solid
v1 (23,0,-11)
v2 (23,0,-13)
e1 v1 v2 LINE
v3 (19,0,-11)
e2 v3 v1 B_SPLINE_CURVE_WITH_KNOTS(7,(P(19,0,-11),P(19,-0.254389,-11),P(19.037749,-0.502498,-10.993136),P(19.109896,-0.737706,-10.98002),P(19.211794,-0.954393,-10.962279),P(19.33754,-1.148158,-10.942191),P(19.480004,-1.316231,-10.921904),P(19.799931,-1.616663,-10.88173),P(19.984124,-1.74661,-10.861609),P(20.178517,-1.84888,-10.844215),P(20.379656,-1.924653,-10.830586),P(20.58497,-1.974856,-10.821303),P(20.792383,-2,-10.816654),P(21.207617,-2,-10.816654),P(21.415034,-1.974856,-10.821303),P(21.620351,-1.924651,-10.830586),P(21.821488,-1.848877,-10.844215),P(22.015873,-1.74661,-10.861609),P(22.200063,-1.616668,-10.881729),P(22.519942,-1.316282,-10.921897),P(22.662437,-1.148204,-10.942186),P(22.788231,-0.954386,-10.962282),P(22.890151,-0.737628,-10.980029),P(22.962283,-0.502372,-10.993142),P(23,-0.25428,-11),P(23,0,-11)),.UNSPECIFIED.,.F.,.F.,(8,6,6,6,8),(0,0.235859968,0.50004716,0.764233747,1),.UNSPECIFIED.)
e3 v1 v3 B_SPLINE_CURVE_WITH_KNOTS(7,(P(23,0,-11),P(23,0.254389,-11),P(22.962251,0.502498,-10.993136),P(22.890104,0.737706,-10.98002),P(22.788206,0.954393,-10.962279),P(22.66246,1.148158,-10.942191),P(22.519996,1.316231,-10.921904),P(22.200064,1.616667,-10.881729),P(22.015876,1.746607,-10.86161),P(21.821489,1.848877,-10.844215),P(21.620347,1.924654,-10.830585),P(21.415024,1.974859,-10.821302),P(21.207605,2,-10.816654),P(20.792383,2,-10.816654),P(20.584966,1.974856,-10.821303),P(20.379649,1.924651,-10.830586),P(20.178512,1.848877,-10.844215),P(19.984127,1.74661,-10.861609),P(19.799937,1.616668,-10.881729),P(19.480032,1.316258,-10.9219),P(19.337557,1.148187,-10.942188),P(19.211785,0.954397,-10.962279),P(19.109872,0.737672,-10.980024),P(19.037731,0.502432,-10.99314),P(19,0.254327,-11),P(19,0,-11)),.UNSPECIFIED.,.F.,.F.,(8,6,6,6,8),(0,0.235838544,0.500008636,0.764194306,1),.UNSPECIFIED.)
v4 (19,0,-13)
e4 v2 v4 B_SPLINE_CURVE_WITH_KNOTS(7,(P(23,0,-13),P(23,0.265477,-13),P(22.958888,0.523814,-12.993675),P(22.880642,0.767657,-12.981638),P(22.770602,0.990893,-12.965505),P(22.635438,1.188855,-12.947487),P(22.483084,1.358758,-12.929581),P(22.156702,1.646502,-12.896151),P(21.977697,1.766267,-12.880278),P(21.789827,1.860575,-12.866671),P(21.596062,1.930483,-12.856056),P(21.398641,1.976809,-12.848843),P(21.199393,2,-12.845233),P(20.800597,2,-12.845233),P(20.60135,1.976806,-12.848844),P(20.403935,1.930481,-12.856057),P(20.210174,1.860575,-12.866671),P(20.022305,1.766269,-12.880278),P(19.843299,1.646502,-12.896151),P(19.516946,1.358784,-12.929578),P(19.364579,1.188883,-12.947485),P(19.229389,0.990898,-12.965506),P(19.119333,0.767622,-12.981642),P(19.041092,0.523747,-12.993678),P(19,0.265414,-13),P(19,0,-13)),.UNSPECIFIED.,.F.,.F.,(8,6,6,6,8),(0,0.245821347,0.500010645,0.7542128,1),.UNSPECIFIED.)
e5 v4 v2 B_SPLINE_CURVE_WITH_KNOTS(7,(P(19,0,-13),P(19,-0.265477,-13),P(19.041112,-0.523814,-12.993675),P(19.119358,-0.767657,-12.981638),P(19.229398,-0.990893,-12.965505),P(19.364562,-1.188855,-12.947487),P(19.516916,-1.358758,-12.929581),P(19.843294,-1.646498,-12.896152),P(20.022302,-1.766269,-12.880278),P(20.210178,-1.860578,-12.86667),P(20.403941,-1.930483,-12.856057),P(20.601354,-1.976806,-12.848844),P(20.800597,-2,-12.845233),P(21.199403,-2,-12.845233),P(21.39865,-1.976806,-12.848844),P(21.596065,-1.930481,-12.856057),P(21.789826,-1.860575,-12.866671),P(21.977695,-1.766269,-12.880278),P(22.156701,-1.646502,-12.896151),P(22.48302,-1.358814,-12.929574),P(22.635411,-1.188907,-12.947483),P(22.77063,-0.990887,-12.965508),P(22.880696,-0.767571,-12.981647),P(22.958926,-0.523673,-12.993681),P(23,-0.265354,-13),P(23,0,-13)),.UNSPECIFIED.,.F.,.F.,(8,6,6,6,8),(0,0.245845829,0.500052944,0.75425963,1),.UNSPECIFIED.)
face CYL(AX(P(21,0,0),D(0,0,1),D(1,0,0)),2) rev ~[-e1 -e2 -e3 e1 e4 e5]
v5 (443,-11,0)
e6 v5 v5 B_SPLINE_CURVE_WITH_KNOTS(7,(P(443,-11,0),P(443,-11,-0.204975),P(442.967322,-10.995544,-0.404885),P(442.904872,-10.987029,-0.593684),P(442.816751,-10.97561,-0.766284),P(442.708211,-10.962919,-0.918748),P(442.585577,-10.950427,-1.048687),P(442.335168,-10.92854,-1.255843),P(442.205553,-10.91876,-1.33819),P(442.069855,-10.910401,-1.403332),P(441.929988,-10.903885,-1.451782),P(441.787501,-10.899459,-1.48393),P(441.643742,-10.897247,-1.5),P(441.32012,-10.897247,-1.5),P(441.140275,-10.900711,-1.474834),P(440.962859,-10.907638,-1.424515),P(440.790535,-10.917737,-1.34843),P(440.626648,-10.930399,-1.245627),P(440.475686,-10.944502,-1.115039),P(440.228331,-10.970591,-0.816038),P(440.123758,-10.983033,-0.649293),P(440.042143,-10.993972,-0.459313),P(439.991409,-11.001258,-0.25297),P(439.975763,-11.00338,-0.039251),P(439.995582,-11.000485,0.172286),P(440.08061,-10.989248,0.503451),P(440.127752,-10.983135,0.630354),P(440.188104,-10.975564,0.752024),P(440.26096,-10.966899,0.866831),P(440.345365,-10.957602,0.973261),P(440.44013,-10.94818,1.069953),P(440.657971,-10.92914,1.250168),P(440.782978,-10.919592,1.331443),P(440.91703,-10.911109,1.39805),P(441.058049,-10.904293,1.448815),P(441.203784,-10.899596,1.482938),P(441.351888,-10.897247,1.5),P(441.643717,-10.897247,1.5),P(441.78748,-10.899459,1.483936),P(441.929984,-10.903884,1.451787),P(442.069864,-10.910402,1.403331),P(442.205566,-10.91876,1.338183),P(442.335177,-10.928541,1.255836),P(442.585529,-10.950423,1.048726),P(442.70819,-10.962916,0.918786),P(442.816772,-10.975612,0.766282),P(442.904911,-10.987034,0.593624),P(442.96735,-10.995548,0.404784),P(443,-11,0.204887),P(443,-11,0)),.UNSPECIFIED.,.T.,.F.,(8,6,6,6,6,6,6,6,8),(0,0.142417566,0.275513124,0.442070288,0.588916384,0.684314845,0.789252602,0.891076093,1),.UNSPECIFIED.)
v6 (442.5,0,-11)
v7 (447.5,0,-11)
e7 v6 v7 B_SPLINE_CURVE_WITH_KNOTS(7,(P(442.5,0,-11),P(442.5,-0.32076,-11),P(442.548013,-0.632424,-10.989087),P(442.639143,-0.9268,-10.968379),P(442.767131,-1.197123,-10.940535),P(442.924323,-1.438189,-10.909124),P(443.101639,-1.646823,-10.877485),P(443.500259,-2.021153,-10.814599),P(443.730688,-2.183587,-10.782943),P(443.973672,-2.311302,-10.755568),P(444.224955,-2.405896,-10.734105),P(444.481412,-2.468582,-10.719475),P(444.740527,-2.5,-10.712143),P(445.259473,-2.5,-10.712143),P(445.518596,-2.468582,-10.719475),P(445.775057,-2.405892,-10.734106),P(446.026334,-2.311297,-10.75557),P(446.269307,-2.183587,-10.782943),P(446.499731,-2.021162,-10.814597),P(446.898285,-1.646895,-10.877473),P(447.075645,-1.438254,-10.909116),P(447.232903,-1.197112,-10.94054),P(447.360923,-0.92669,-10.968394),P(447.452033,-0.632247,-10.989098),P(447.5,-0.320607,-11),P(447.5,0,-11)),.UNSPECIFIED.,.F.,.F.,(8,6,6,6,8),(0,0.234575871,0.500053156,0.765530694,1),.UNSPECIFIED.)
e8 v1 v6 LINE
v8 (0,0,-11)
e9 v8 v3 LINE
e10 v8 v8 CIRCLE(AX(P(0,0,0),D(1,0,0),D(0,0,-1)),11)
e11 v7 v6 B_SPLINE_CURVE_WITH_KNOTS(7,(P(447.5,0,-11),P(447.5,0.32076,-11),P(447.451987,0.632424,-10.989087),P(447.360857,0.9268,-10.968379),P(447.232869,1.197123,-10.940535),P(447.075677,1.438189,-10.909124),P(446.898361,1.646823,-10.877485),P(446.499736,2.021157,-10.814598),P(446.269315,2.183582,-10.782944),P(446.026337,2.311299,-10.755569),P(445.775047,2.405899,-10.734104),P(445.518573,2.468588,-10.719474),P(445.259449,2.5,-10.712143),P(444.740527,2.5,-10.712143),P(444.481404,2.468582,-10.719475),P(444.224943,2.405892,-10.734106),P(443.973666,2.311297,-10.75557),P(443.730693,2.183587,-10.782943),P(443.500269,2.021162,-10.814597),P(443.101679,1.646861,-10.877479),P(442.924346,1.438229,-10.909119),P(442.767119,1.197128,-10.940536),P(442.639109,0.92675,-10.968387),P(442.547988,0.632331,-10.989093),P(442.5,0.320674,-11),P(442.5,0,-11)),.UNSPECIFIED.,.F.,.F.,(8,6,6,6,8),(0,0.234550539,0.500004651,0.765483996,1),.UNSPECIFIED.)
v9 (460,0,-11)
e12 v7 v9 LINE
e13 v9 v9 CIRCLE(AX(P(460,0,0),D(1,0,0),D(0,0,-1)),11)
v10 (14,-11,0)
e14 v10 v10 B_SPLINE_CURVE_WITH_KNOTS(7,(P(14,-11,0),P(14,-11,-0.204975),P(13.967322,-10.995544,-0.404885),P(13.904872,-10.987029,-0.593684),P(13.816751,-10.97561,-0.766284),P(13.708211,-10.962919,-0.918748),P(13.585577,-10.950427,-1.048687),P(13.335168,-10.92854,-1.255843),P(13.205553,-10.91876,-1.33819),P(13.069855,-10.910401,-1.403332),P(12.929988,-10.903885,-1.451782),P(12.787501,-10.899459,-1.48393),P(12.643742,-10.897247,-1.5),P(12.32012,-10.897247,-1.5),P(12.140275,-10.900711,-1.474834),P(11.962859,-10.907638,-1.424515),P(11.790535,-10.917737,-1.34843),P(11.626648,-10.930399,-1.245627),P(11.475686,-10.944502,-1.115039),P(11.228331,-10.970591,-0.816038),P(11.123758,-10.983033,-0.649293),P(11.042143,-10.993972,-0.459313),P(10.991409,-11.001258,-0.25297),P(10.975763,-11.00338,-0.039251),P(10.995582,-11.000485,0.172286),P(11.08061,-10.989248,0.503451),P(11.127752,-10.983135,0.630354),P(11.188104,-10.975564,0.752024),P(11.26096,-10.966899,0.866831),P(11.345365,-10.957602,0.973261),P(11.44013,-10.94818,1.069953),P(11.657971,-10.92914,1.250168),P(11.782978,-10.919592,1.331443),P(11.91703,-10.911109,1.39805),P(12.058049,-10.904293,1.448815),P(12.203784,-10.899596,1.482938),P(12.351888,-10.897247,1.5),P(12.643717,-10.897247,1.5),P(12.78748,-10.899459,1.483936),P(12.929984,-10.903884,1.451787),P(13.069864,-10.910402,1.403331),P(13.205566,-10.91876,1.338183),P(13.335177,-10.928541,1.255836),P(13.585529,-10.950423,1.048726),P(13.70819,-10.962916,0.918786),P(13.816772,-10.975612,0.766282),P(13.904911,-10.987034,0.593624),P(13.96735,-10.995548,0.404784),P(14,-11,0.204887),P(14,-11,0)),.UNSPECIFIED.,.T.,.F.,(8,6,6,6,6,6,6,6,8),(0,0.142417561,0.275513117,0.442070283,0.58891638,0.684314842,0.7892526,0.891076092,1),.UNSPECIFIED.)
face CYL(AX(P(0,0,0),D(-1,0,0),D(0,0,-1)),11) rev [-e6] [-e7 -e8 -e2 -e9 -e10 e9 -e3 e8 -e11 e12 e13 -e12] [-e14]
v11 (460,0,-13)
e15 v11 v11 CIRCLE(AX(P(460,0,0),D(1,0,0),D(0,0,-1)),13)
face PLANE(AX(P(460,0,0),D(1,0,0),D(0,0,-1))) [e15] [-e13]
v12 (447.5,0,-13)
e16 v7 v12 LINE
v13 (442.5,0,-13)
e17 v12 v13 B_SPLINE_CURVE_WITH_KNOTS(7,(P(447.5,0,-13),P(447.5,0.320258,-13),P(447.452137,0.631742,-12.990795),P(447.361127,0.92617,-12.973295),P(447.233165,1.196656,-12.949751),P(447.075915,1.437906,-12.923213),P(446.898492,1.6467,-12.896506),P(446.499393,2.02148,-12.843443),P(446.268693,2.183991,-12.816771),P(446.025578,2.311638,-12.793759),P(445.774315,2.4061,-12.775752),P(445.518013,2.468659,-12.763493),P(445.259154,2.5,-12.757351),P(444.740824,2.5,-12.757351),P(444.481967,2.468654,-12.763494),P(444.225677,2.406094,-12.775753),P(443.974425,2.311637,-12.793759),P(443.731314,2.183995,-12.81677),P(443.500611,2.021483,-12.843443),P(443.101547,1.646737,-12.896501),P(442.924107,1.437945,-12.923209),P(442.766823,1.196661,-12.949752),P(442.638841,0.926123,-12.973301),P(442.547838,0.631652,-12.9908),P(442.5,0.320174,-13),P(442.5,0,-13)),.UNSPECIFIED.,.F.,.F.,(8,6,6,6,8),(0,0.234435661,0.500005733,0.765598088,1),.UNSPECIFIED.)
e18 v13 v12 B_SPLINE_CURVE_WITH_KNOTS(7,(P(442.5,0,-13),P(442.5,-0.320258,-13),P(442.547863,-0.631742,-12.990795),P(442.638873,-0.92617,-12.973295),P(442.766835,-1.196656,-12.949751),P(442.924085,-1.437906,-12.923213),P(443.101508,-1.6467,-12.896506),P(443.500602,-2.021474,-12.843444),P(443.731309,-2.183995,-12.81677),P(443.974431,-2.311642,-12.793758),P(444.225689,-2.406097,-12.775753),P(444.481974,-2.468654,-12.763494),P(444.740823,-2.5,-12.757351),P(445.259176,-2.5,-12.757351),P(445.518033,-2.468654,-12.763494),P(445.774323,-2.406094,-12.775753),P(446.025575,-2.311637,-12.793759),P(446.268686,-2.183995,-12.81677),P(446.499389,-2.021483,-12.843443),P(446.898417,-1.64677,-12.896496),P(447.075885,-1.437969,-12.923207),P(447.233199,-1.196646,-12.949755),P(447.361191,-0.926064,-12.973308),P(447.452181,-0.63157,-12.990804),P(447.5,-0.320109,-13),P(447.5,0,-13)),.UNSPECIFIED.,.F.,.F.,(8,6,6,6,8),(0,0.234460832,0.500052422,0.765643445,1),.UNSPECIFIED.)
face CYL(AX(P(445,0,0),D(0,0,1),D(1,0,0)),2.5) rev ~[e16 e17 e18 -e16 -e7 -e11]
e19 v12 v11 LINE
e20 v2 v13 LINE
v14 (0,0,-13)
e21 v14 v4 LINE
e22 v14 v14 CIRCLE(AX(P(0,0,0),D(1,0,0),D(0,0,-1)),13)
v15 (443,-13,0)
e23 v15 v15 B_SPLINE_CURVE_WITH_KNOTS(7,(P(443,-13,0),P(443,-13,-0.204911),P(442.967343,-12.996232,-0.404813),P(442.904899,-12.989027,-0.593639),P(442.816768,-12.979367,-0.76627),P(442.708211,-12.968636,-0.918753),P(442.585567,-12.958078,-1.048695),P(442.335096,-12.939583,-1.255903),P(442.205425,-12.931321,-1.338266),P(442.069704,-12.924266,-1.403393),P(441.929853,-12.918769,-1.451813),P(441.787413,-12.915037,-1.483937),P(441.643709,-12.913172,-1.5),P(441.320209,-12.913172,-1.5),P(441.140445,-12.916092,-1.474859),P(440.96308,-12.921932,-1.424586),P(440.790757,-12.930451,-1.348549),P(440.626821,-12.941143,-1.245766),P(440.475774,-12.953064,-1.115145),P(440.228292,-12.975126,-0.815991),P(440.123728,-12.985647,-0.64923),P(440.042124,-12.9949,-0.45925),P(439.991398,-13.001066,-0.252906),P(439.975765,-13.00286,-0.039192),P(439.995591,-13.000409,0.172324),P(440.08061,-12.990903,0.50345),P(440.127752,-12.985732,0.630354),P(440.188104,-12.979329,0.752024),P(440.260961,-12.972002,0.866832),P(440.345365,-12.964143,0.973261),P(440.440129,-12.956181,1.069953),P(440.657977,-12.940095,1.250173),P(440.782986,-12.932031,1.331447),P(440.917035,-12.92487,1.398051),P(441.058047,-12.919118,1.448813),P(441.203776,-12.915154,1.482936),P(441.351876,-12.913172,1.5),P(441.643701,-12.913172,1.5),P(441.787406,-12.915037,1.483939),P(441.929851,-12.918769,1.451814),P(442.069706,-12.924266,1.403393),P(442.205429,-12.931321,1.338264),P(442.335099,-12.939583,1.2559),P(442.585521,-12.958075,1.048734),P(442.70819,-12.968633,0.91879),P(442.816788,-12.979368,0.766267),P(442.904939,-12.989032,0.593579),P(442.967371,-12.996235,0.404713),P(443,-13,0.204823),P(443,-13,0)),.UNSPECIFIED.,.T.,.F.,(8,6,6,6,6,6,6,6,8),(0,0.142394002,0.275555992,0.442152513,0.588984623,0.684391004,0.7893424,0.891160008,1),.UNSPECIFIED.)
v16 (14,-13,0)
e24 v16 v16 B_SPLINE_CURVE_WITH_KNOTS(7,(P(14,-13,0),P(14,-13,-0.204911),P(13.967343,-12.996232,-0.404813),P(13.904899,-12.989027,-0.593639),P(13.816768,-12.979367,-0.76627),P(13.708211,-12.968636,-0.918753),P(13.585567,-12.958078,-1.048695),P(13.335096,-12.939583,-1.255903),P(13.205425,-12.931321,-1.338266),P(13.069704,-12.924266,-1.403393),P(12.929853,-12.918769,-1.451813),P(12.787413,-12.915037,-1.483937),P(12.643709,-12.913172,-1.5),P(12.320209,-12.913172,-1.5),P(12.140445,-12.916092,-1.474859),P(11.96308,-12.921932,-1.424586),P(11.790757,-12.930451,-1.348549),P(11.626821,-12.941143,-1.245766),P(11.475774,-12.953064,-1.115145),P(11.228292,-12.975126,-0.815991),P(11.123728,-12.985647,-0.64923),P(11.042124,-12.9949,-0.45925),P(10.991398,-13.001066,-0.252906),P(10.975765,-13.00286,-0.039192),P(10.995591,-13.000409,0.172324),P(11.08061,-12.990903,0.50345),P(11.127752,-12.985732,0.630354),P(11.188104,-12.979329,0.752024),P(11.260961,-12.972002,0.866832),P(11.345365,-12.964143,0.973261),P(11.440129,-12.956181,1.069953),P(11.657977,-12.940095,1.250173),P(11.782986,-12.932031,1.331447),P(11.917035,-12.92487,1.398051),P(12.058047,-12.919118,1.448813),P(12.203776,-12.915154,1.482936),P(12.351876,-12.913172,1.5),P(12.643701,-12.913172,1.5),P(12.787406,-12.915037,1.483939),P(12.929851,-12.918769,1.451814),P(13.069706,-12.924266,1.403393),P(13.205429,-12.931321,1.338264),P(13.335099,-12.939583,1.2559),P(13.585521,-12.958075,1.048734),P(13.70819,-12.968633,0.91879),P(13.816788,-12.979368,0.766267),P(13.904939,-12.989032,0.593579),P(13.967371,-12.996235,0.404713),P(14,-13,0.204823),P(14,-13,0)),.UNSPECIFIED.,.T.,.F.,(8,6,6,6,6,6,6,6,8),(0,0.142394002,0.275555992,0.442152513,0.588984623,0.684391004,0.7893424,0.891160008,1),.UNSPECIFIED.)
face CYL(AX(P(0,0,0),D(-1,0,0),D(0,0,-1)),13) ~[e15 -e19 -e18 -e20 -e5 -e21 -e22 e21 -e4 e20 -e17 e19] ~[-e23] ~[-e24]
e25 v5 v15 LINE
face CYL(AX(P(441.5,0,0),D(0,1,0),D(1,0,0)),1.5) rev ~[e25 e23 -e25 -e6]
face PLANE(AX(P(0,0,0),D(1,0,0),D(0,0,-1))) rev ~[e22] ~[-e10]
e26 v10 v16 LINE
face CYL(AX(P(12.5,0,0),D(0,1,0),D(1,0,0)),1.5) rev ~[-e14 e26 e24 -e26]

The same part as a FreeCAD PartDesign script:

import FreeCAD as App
import Part
import Sketcher
Q = App.Units.Quantity

doc = App.newDocument("Part")
body = doc.addObject("PartDesign::Body", "Body")

sketch1 = doc.addObject("Sketcher::SketchObject", "Sketch")
body.addObject(sketch1)
sketch1.AttachmentSupport = (doc.YZ_Plane, [""])
sketch1.MapMode = "FlatFace"
sketch1.addGeometry([
    Part.Circle(App.Vector(0, 0, 0), App.Vector(0, 0, 1), 13),
    Part.Circle(App.Vector(0, 0, 0), App.Vector(0, 0, 1), 11),
], False)
sketch1.addConstraint([
    Sketcher.Constraint("Coincident", 0, 3, -1, 1),
    Sketcher.Constraint("Coincident", 1, 3, -1, 1),
    Sketcher.Constraint("Diameter", 0, Q("26 mm")),
    Sketcher.Constraint("Diameter", 1, Q("22 mm")),
])
pad1 = doc.addObject("PartDesign::Pad", "Pad")
body.addObject(pad1)
pad1.Profile = sketch1
pad1.Length = 460

sketch2 = doc.addObject("Sketcher::SketchObject", "Sketch001")
body.addObject(sketch2)
sketch2.AttachmentSupport = (doc.XY_Plane, [""])
sketch2.MapMode = "FlatFace"
sketch2.addGeometry([
    Part.Circle(App.Vector(21, 0, 0), App.Vector(0, 0, 1), 2),
    Part.Circle(App.Vector(445, 0, 0), App.Vector(0, 0, 1), 2.5),
], False)
sketch2.addConstraint([
    Sketcher.Constraint("PointOnObject", 0, 3, -1),
    Sketcher.Constraint("PointOnObject", 1, 3, -1),
    Sketcher.Constraint("Diameter", 0, Q("4 mm")),
    Sketcher.Constraint("Diameter", 1, Q("5 mm")),
    Sketcher.Constraint("DistanceX", -1, 1, 0, 3, Q("21 mm")),
    Sketcher.Constraint("DistanceX", -1, 1, 1, 3, Q("445 mm")),
])
pocket1 = doc.addObject("PartDesign::Pocket", "Pocket")
body.addObject(pocket1)
pocket1.Profile = sketch2
pocket1.Type = "ThroughAll"

sketch3 = doc.addObject("Sketcher::SketchObject", "Sketch002")
body.addObject(sketch3)
sketch3.AttachmentSupport = (doc.XZ_Plane, [""])
sketch3.MapMode = "FlatFace"
sketch3.addGeometry([
    Part.Circle(App.Vector(12.5, 0, 0), App.Vector(0, 0, 1), 1.5),
    Part.Circle(App.Vector(441.5, 0, 0), App.Vector(0, 0, 1), 1.5),
], False)
sketch3.addConstraint([
    Sketcher.Constraint("Equal", 0, 1),
    Sketcher.Constraint("PointOnObject", 0, 3, -1),
    Sketcher.Constraint("PointOnObject", 1, 3, -1),
    Sketcher.Constraint("Diameter", 0, Q("3 mm")),
    Sketcher.Constraint("DistanceX", 0, 3, 1, 3, Q("429 mm")),
    Sketcher.Constraint("DistanceX", -1, 1, 0, 3, Q("12.5 mm")),
])
pocket2 = doc.addObject("PartDesign::Pocket", "Pocket001")
body.addObject(pocket2)
pocket2.Profile = sketch3
pocket2.Type = "ThroughAll"
pocket2.Reversed = True

doc.recompute()
